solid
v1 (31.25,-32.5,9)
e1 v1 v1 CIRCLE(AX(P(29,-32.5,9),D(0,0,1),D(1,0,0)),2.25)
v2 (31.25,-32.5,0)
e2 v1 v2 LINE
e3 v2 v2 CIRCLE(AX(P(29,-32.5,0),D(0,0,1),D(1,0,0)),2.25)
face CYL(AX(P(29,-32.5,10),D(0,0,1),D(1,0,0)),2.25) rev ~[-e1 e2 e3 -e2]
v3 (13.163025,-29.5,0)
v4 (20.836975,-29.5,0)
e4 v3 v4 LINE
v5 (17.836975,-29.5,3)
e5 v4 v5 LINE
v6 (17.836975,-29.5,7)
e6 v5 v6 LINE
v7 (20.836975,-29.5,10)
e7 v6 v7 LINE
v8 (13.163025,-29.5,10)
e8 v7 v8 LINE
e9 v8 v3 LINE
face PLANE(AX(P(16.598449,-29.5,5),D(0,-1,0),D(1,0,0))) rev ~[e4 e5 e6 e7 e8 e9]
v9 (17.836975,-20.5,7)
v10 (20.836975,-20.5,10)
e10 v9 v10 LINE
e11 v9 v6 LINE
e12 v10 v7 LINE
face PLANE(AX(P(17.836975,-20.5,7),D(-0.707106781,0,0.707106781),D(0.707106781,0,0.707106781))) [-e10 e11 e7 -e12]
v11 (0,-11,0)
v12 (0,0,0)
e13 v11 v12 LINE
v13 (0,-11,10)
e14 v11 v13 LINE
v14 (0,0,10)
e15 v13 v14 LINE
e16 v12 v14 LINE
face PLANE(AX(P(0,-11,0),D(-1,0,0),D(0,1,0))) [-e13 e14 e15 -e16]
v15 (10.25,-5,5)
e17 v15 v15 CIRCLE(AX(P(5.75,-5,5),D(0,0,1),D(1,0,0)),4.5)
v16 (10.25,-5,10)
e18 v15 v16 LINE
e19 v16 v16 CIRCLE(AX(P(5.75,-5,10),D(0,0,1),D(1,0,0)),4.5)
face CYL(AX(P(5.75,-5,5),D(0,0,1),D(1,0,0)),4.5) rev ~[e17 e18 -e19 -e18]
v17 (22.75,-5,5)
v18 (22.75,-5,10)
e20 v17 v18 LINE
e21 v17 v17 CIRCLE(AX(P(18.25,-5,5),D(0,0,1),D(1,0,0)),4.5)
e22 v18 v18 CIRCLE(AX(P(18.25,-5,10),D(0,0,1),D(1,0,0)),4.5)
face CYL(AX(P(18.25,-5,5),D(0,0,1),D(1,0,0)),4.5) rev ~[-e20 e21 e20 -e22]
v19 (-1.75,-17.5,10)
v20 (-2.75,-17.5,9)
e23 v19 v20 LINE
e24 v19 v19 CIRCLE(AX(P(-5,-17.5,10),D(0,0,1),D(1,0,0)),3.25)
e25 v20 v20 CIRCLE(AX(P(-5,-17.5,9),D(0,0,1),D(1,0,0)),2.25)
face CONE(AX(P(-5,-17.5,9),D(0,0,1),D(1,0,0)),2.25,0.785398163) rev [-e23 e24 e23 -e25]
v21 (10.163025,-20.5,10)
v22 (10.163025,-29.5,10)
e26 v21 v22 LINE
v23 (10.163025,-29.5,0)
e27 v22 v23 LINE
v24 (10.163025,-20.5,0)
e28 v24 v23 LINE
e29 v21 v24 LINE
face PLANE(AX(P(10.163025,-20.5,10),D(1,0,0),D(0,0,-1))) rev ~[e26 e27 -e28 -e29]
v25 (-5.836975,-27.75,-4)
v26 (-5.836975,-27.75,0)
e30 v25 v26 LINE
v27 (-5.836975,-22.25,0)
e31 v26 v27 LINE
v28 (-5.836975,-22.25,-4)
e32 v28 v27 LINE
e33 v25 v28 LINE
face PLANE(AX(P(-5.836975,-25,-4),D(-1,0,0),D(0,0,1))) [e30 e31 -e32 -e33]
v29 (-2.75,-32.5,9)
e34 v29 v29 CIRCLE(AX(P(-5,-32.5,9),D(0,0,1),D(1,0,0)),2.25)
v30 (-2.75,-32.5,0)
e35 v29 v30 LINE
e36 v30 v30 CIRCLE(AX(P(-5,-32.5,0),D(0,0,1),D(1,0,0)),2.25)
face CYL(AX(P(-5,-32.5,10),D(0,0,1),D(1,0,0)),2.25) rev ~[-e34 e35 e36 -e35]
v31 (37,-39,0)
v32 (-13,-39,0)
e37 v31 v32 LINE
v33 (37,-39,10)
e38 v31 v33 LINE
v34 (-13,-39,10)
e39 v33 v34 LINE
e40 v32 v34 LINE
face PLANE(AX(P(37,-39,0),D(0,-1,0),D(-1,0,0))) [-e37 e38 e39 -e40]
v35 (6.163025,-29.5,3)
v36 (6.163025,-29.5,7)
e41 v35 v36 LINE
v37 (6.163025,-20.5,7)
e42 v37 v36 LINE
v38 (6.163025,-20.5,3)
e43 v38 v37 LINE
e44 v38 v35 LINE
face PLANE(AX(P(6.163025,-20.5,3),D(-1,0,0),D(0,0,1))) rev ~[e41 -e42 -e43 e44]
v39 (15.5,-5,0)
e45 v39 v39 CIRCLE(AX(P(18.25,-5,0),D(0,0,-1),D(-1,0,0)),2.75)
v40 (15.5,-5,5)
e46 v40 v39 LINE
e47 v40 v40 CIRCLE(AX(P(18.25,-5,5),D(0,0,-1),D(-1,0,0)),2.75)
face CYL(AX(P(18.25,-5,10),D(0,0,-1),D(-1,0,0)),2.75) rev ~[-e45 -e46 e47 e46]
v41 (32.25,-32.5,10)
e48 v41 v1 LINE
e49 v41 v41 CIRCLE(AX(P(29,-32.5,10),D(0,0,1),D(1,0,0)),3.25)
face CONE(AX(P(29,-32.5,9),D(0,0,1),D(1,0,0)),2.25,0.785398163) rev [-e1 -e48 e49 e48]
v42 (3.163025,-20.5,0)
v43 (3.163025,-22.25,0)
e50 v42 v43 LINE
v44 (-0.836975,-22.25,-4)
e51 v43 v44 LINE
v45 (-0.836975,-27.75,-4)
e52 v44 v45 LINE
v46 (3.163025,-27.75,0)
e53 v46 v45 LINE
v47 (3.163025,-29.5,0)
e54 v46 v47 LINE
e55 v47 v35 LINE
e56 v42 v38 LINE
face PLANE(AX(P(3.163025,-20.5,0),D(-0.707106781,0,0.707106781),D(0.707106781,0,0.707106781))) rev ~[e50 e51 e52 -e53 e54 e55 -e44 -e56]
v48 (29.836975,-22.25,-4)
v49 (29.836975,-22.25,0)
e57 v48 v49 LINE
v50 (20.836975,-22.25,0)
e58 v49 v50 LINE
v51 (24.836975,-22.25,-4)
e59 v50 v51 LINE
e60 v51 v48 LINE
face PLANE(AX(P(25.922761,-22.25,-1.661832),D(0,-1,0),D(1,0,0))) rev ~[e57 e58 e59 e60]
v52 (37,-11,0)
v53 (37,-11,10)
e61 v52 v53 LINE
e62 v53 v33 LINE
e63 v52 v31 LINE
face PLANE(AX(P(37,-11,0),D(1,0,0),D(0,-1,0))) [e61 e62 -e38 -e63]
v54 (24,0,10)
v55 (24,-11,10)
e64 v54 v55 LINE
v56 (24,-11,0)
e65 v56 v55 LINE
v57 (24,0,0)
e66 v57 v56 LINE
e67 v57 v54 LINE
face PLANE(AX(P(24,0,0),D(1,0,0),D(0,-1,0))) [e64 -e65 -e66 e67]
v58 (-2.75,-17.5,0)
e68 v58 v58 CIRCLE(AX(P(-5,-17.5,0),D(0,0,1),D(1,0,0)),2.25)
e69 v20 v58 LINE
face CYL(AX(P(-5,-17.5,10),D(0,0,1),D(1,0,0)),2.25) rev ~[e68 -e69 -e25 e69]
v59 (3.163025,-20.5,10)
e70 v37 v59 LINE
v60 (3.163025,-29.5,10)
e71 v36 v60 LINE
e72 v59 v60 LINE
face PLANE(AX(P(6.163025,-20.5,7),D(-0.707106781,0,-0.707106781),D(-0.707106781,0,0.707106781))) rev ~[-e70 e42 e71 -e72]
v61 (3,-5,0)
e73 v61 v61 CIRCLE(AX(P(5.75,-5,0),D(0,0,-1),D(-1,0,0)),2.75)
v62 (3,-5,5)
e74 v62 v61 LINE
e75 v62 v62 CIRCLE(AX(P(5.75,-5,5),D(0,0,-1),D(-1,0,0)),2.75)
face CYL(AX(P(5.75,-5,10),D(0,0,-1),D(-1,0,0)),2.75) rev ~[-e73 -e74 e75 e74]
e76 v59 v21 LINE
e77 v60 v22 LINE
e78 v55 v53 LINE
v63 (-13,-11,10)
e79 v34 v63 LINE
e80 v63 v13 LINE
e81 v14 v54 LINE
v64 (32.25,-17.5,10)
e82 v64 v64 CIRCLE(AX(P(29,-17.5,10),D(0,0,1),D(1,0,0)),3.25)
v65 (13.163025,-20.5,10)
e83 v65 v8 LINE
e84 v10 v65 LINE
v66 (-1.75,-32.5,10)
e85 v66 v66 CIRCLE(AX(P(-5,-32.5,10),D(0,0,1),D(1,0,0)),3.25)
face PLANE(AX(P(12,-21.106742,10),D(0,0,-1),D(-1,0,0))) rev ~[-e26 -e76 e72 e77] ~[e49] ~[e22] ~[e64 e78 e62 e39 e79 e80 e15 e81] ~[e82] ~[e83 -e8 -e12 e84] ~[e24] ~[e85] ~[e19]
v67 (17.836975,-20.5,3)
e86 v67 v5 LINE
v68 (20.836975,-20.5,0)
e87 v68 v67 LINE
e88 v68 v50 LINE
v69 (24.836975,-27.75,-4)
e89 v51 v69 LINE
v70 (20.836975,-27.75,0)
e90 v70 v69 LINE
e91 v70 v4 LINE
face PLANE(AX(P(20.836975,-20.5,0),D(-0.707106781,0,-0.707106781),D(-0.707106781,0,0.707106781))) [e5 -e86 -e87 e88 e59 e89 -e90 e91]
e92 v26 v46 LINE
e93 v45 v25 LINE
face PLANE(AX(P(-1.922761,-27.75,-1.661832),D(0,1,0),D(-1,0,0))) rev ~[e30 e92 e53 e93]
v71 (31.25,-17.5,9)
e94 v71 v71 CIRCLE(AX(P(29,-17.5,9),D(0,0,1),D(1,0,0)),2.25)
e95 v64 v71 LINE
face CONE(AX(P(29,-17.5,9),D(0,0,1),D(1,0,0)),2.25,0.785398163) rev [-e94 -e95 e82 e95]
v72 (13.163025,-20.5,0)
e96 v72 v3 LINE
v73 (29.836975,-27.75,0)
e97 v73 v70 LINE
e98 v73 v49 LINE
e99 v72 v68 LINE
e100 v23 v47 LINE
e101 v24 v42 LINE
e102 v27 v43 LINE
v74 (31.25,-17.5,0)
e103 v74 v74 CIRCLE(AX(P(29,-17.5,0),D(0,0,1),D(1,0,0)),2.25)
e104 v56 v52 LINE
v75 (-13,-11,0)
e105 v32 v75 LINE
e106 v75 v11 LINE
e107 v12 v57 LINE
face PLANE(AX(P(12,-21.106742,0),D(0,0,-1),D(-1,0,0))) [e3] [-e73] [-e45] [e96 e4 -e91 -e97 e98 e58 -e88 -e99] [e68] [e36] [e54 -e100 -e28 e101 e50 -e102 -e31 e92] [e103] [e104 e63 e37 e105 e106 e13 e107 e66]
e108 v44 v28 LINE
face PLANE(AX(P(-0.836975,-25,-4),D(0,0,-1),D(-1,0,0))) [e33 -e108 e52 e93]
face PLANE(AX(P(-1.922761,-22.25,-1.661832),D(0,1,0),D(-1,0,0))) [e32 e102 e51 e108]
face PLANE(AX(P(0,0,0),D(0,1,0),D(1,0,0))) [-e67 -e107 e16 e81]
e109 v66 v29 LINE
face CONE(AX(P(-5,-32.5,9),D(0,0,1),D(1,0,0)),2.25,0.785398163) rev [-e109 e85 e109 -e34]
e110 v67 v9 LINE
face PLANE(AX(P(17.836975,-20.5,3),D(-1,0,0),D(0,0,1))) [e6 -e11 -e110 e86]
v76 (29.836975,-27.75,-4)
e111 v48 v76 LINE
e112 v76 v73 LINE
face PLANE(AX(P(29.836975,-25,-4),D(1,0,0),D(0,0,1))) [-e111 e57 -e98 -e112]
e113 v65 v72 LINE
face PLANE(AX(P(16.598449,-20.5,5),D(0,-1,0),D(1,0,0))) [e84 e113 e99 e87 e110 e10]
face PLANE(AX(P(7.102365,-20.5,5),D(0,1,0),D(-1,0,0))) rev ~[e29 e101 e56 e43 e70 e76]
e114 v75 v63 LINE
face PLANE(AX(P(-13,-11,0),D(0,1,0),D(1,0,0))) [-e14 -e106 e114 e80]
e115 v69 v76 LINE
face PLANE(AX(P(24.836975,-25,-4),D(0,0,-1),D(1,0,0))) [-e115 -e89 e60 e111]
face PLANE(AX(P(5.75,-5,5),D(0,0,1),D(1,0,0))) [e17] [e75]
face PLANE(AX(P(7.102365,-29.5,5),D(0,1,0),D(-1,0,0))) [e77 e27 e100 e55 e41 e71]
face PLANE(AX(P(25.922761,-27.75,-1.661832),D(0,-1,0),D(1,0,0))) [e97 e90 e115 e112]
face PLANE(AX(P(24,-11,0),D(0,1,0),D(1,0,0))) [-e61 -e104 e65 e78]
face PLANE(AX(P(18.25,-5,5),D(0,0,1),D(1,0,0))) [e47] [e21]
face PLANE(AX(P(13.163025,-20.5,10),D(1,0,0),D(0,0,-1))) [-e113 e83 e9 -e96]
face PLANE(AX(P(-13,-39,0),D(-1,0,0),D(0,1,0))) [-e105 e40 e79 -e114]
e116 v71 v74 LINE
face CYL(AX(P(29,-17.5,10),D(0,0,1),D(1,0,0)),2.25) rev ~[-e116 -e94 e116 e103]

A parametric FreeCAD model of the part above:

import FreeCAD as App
import Part
import Sketcher
from FreeCAD import Vector
Q = App.Units.Quantity


def edges_at(feature, points):
    """Names of the edges that pass closest to the given points."""
    edges = feature.Shape.Edges
    near = lambda p: min(range(len(edges)), key=lambda i: edges[i].distToShape(Part.Vertex(*p))[0])
    return sorted({f"Edge{near(p) + 1}" for p in points})

doc = App.newDocument("Part")
body = doc.addObject("PartDesign::Body", "Body")

sketch1 = body.newObject("Sketcher::SketchObject", "Sketch")
sketch1.AttachmentSupport = (doc.getObject("XY_Plane"), [""])
sketch1.MapMode = "FlatFace"
sketch1.addGeometry(Part.LineSegment(Vector(24, 0, 0), Vector(0, 0, 0)), False)
sketch1.addGeometry(Part.LineSegment(Vector(0, 0, 0), Vector(0, -11, 0)), False)
sketch1.addGeometry(Part.LineSegment(Vector(0, -11, 0), Vector(-13, -11, 0)), False)
sketch1.addGeometry(Part.LineSegment(Vector(-13, -11, 0), Vector(-13, -39, 0)), False)
sketch1.addGeometry(Part.LineSegment(Vector(-13, -39, 0), Vector(37, -39, 0)), False)
sketch1.addGeometry(Part.LineSegment(Vector(37, -39, 0), Vector(37, -11, 0)), False)
sketch1.addGeometry(Part.LineSegment(Vector(37, -11, 0), Vector(24, -11, 0)), False)
sketch1.addGeometry(Part.LineSegment(Vector(24, -11, 0), Vector(24, 0, 0)), False)
sketch1.addConstraint(Sketcher.Constraint("Coincident", 0, 2, 1, 1))
sketch1.addConstraint(Sketcher.Constraint("Coincident", 1, 2, 2, 1))
sketch1.addConstraint(Sketcher.Constraint("Coincident", 2, 2, 3, 1))
sketch1.addConstraint(Sketcher.Constraint("Coincident", 3, 2, 4, 1))
sketch1.addConstraint(Sketcher.Constraint("Coincident", 4, 2, 5, 1))
sketch1.addConstraint(Sketcher.Constraint("Coincident", 5, 2, 6, 1))
sketch1.addConstraint(Sketcher.Constraint("Coincident", 6, 2, 7, 1))
sketch1.addConstraint(Sketcher.Constraint("Coincident", 7, 2, 0, 1))
sketch1.addConstraint(Sketcher.Constraint("Horizontal", 0))
sketch1.addConstraint(Sketcher.Constraint("Vertical", 1))
sketch1.addConstraint(Sketcher.Constraint("Horizontal", 2))
sketch1.addConstraint(Sketcher.Constraint("Vertical", 3))
sketch1.addConstraint(Sketcher.Constraint("Horizontal", 4))
sketch1.addConstraint(Sketcher.Constraint("Vertical", 5))
sketch1.addConstraint(Sketcher.Constraint("Horizontal", 6))
sketch1.addConstraint(Sketcher.Constraint("Vertical", 7))
sketch1.addConstraint(Sketcher.Constraint("Coincident", 0, 2, -1, 1))
sketch1.addConstraint(Sketcher.Constraint("Horizontal", 2, 2, 5, 2))
sketch1.addConstraint(Sketcher.Constraint("Equal", 2, 6))
sketch1.addConstraint(Sketcher.Constraint("DistanceX", 0, 2, 0, 1, Q("24 mm")))
sketch1.addConstraint(Sketcher.Constraint("DistanceX", 2, 2, 2, 1, Q("13 mm")))
sketch1.addConstraint(Sketcher.Constraint("DistanceY", 1, 2, 1, 1, Q("11 mm")))
sketch1.addConstraint(Sketcher.Constraint("DistanceY", 3, 2, 3, 1, Q("28 mm")))
pad1 = body.newObject("PartDesign::Pad", "Pad")
pad1.Profile = sketch1
pad1.Length = 10

sketch2 = body.newObject("Sketcher::SketchObject", "Sketch001")
sketch2.AttachmentSupport = (doc.getObject("XY_Plane"), [""])
sketch2.MapMode = "FlatFace"
sketch2.AttachmentOffset = App.Placement(Vector(0, 0, 10), App.Rotation())
sketch2.addGeometry(Part.Circle(Vector(5.8, -5, 0), Vector(0, 0, 1), 2.8), False)
sketch2.addGeometry(Part.Circle(Vector(18.2, -5, 0), Vector(0, 0, 1), 2.8), False)
sketch2.addConstraint(Sketcher.Constraint("Equal", 0, 1))
sketch2.addConstraint(Sketcher.Constraint("Horizontal", 0, 3, 1, 3))
sketch2.addConstraint(Sketcher.Constraint("Diameter", 0, Q("5.5 mm")))
sketch2.addConstraint(Sketcher.Constraint("DistanceY", 0, 3, -1, 1, Q("5 mm")))
sketch2.addConstraint(Sketcher.Constraint("DistanceX", 0, 3, 1, 3, Q("12.5 mm")))
sketch2.addConstraint(Sketcher.Constraint("DistanceX", -1, 1, 0, 3, Q("5.75 mm")))
doc.recompute()
hole = body.newObject("PartDesign::Hole", "Hole")
hole.Profile = sketch2
hole.ThreadType = "None"
hole.Diameter = 5.5
hole.DepthType = "ThroughAll"
hole.HoleCutType = "Counterbore"
hole.HoleCutDiameter = 9
hole.HoleCutDepth = 5

sketch3 = body.newObject("Sketcher::SketchObject", "Sketch002")
sketch3.AttachmentSupport = (doc.getObject("XZ_Plane"), [""])
sketch3.MapMode = "FlatFace"
sketch3.AttachmentOffset = App.Placement(Vector(0, 0, 20.5), App.Rotation())
sketch3.addGeometry(Part.LineSegment(Vector(3.2, 0, 0), Vector(6.2, 3, 0)), False)
sketch3.addGeometry(Part.LineSegment(Vector(6.2, 3, 0), Vector(6.2, 7, 0)), False)
sketch3.addGeometry(Part.LineSegment(Vector(6.2, 7, 0), Vector(3.2, 10, 0)), False)
sketch3.addGeometry(Part.LineSegment(Vector(3.2, 10, 0), Vector(10.2, 10, 0)), False)
sketch3.addGeometry(Part.LineSegment(Vector(10.2, 10, 0), Vector(10.2, 0, 0)), False)
sketch3.addGeometry(Part.LineSegment(Vector(10.2, 0, 0), Vector(3.2, 0, 0)), False)
sketch3.addGeometry(Part.LineSegment(Vector(13.2, 10, 0), Vector(20.8, 10, 0)), False)
sketch3.addGeometry(Part.LineSegment(Vector(20.8, 10, 0), Vector(17.8, 7, 0)), False)
sketch3.addGeometry(Part.LineSegment(Vector(17.8, 7, 0), Vector(17.8, 3, 0)), False)
sketch3.addGeometry(Part.LineSegment(Vector(17.8, 3, 0), Vector(20.8, 0, 0)), False)
sketch3.addGeometry(Part.LineSegment(Vector(20.8, 0, 0), Vector(13.2, 0, 0)), False)
sketch3.addGeometry(Part.LineSegment(Vector(13.2, 0, 0), Vector(13.2, 10, 0)), False)
sketch3.addConstraint(Sketcher.Constraint("Coincident", 0, 2, 1, 1))
sketch3.addConstraint(Sketcher.Constraint("Coincident", 1, 2, 2, 1))
sketch3.addConstraint(Sketcher.Constraint("Coincident", 2, 2, 3, 1))
sketch3.addConstraint(Sketcher.Constraint("Coincident", 3, 2, 4, 1))
sketch3.addConstraint(Sketcher.Constraint("Coincident", 4, 2, 5, 1))
sketch3.addConstraint(Sketcher.Constraint("Coincident", 5, 2, 0, 1))
sketch3.addConstraint(Sketcher.Constraint("Coincident", 6, 2, 7, 1))
sketch3.addConstraint(Sketcher.Constraint("Coincident", 7, 2, 8, 1))
sketch3.addConstraint(Sketcher.Constraint("Coincident", 8, 2, 9, 1))
sketch3.addConstraint(Sketcher.Constraint("Coincident", 9, 2, 10, 1))
sketch3.addConstraint(Sketcher.Constraint("Coincident", 10, 2, 11, 1))
sketch3.addConstraint(Sketcher.Constraint("Coincident", 11, 2, 6, 1))
sketch3.addConstraint(Sketcher.Constraint("Vertical", 1))
sketch3.addConstraint(Sketcher.Constraint("Horizontal", 3))
sketch3.addConstraint(Sketcher.Constraint("Vertical", 4))
sketch3.addConstraint(Sketcher.Constraint("Horizontal", 5))
sketch3.addConstraint(Sketcher.Constraint("Horizontal", 6))
sketch3.addConstraint(Sketcher.Constraint("Vertical", 8))
sketch3.addConstraint(Sketcher.Constraint("Horizontal", 10))
sketch3.addConstraint(Sketcher.Constraint("Vertical", 11))
sketch3.addConstraint(Sketcher.Constraint("PointOnObject", 4, 2, -1))
sketch3.addConstraint(Sketcher.Constraint("PointOnObject", 9, 2, -1))
sketch3.addConstraint(Sketcher.Constraint("Perpendicular", 0, 2))
sketch3.addConstraint(Sketcher.Constraint("Perpendicular", 2, 7))
sketch3.addConstraint(Sketcher.Constraint("Perpendicular", 7, 9))
sketch3.addConstraint(Sketcher.Constraint("Horizontal", 3, 2, 6, 2))
sketch3.addConstraint(Sketcher.Constraint("Horizontal", 1, 2, 7, 2))
sketch3.addConstraint(Sketcher.Constraint("Horizontal", 0, 2, 8, 2))
sketch3.addConstraint(Sketcher.Constraint("Vertical", 2, 2, 5, 2))
sketch3.addConstraint(Sketcher.Constraint("Vertical", 6, 2, 9, 2))
sketch3.addConstraint(Sketcher.Constraint("DistanceX", 3, 1, 3, 2, Q("7 mm")))
sketch3.addConstraint(Sketcher.Constraint("DistanceY", 1, 1, 1, 2, Q("4 mm")))
sketch3.addConstraint(Sketcher.Constraint("DistanceY", 4, 2, 4, 1, Q("10 mm")))
sketch3.addConstraint(Sketcher.Constraint("DistanceX", 4, 2, 10, 2, Q("3 mm")))
sketch3.addConstraint(Sketcher.Constraint("DistanceX", 6, 1, 6, 2, Q("7.67395 mm")))
sketch3.addConstraint(Sketcher.Constraint("DistanceX", -1, 1, 0, 2, Q("6.163025 mm")))
pocket1 = body.newObject("PartDesign::Pocket", "Pocket")
pocket1.Profile = sketch3
pocket1.Length = 9
pocket1.Reversed = True

sketch4 = body.newObject("Sketcher::SketchObject", "Sketch003")
sketch4.AttachmentSupport = (doc.getObject("XY_Plane"), [""])
sketch4.MapMode = "FlatFace"
sketch4.AttachmentOffset = App.Placement(Vector(0, 0, 10), App.Rotation())
sketch4.addGeometry(Part.Circle(Vector(-5, -17.5, 0), Vector(0, 0, 1), 2.2), False)
sketch4.addGeometry(Part.Circle(Vector(-5, -32.5, 0), Vector(0, 0, 1), 2.2), False)
sketch4.addGeometry(Part.Circle(Vector(29, -32.5, 0), Vector(0, 0, 1), 2.2), False)
sketch4.addGeometry(Part.Circle(Vector(29, -17.5, 0), Vector(0, 0, 1), 2.2), False)
sketch4.addConstraint(Sketcher.Constraint("Equal", 0, 1))
sketch4.addConstraint(Sketcher.Constraint("Equal", 1, 2))
sketch4.addConstraint(Sketcher.Constraint("Equal", 2, 3))
sketch4.addConstraint(Sketcher.Constraint("Horizontal", 1, 3, 2, 3))
sketch4.addConstraint(Sketcher.Constraint("Horizontal", 0, 3, 3, 3))
sketch4.addConstraint(Sketcher.Constraint("Vertical", 0, 3, 1, 3))
sketch4.addConstraint(Sketcher.Constraint("Vertical", 2, 3, 3, 3))
sketch4.addConstraint(Sketcher.Constraint("Diameter", 0, Q("4.5 mm")))
sketch4.addConstraint(Sketcher.Constraint("DistanceX", 0, 3, -1, 1, Q("5 mm")))
sketch4.addConstraint(Sketcher.Constraint("DistanceX", -1, 1, 2, 3, Q("29 mm")))
sketch4.addConstraint(Sketcher.Constraint("DistanceY", 1, 3, 0, 3, Q("15 mm")))
sketch4.addConstraint(Sketcher.Constraint("DistanceY", 0, 3, -1, 1, Q("17.5 mm")))
pocket2 = body.newObject("PartDesign::Pocket", "Pocket001")
pocket2.Profile = sketch4
pocket2.Type = "ThroughAll"
doc.recompute()

chamfer = body.newObject("PartDesign::Chamfer", "Chamfer")
chamfer.Base = (pocket2, edges_at(pocket2, [
    (-7.25, -17.5, 10),
    (-7.25, -32.5, 10),
    (26.75, -17.5, 10),
    (26.75, -32.5, 10),
]))
chamfer.Size = 1

sketch5 = body.newObject("Sketcher::SketchObject", "Sketch004")
sketch5.AttachmentSupport = (doc.getObject("XZ_Plane"), [""])
sketch5.MapMode = "FlatFace"
sketch5.AttachmentOffset = App.Placement(Vector(0, 0, 25), App.Rotation())
sketch5.addGeometry(Part.LineSegment(Vector(-5.8, -4, 0), Vector(-0.8, -4, 0)), False)
sketch5.addGeometry(Part.LineSegment(Vector(-0.8, -4, 0), Vector(3.2, 0, 0)), False)
sketch5.addGeometry(Part.LineSegment(Vector(3.2, 0, 0), Vector(-5.8, 0, 0)), False)
sketch5.addGeometry(Part.LineSegment(Vector(-5.8, 0, 0), Vector(-5.8, -4, 0)), False)
sketch5.addGeometry(Part.LineSegment(Vector(20.8, 0, 0), Vector(24.8, -4, 0)), False)
sketch5.addGeometry(Part.LineSegment(Vector(24.8, -4, 0), Vector(29.8, -4, 0)), False)
sketch5.addGeometry(Part.LineSegment(Vector(29.8, -4, 0), Vector(29.8, 0, 0)), False)
sketch5.addGeometry(Part.LineSegment(Vector(29.8, 0, 0), Vector(20.8, 0, 0)), False)
sketch5.addConstraint(Sketcher.Constraint("Coincident", 0, 2, 1, 1))
sketch5.addConstraint(Sketcher.Constraint("Coincident", 1, 2, 2, 1))
sketch5.addConstraint(Sketcher.Constraint("Coincident", 2, 2, 3, 1))
sketch5.addConstraint(Sketcher.Constraint("Coincident", 3, 2, 0, 1))
sketch5.addConstraint(Sketcher.Constraint("Coincident", 4, 2, 5, 1))
sketch5.addConstraint(Sketcher.Constraint("Coincident", 5, 2, 6, 1))
sketch5.addConstraint(Sketcher.Constraint("Coincident", 6, 2, 7, 1))
sketch5.addConstraint(Sketcher.Constraint("Coincident", 7, 2, 4, 1))
sketch5.addConstraint(Sketcher.Constraint("Horizontal", 0))
sketch5.addConstraint(Sketcher.Constraint("Horizontal", 2))
sketch5.addConstraint(Sketcher.Constraint("Vertical", 3))
sketch5.addConstraint(Sketcher.Constraint("Horizontal", 5))
sketch5.addConstraint(Sketcher.Constraint("Vertical", 6))
sketch5.addConstraint(Sketcher.Constraint("Horizontal", 7))
sketch5.addConstraint(Sketcher.Constraint("PointOnObject", 1, 2, -1))
sketch5.addConstraint(Sketcher.Constraint("PointOnObject", 6, 2, -1))
sketch5.addConstraint(Sketcher.Constraint("Perpendicular", 1, 4))
sketch5.addConstraint(Sketcher.Constraint("Horizontal", 3, 2, 4, 2))
sketch5.addConstraint(Sketcher.Constraint("Equal", 0, 5))
sketch5.addConstraint(Sketcher.Constraint("Equal", 2, 7))
sketch5.addConstraint(Sketcher.Constraint("DistanceX", 0, 1, 0, 2, Q("5 mm")))
sketch5.addConstraint(Sketcher.Constraint("DistanceX", 2, 2, 2, 1, Q("9 mm")))
sketch5.addConstraint(Sketcher.Constraint("DistanceX", 1, 2, 4, 2, Q("21.67395 mm")))
sketch5.addConstraint(Sketcher.Constraint("DistanceX", 0, 2, -1, 1, Q("0.836975 mm")))
pad2 = body.newObject("PartDesign::Pad", "Pad001")
pad2.Profile = sketch5
pad2.Length = 5.5
pad2.Midplane = True

doc.recompute()
